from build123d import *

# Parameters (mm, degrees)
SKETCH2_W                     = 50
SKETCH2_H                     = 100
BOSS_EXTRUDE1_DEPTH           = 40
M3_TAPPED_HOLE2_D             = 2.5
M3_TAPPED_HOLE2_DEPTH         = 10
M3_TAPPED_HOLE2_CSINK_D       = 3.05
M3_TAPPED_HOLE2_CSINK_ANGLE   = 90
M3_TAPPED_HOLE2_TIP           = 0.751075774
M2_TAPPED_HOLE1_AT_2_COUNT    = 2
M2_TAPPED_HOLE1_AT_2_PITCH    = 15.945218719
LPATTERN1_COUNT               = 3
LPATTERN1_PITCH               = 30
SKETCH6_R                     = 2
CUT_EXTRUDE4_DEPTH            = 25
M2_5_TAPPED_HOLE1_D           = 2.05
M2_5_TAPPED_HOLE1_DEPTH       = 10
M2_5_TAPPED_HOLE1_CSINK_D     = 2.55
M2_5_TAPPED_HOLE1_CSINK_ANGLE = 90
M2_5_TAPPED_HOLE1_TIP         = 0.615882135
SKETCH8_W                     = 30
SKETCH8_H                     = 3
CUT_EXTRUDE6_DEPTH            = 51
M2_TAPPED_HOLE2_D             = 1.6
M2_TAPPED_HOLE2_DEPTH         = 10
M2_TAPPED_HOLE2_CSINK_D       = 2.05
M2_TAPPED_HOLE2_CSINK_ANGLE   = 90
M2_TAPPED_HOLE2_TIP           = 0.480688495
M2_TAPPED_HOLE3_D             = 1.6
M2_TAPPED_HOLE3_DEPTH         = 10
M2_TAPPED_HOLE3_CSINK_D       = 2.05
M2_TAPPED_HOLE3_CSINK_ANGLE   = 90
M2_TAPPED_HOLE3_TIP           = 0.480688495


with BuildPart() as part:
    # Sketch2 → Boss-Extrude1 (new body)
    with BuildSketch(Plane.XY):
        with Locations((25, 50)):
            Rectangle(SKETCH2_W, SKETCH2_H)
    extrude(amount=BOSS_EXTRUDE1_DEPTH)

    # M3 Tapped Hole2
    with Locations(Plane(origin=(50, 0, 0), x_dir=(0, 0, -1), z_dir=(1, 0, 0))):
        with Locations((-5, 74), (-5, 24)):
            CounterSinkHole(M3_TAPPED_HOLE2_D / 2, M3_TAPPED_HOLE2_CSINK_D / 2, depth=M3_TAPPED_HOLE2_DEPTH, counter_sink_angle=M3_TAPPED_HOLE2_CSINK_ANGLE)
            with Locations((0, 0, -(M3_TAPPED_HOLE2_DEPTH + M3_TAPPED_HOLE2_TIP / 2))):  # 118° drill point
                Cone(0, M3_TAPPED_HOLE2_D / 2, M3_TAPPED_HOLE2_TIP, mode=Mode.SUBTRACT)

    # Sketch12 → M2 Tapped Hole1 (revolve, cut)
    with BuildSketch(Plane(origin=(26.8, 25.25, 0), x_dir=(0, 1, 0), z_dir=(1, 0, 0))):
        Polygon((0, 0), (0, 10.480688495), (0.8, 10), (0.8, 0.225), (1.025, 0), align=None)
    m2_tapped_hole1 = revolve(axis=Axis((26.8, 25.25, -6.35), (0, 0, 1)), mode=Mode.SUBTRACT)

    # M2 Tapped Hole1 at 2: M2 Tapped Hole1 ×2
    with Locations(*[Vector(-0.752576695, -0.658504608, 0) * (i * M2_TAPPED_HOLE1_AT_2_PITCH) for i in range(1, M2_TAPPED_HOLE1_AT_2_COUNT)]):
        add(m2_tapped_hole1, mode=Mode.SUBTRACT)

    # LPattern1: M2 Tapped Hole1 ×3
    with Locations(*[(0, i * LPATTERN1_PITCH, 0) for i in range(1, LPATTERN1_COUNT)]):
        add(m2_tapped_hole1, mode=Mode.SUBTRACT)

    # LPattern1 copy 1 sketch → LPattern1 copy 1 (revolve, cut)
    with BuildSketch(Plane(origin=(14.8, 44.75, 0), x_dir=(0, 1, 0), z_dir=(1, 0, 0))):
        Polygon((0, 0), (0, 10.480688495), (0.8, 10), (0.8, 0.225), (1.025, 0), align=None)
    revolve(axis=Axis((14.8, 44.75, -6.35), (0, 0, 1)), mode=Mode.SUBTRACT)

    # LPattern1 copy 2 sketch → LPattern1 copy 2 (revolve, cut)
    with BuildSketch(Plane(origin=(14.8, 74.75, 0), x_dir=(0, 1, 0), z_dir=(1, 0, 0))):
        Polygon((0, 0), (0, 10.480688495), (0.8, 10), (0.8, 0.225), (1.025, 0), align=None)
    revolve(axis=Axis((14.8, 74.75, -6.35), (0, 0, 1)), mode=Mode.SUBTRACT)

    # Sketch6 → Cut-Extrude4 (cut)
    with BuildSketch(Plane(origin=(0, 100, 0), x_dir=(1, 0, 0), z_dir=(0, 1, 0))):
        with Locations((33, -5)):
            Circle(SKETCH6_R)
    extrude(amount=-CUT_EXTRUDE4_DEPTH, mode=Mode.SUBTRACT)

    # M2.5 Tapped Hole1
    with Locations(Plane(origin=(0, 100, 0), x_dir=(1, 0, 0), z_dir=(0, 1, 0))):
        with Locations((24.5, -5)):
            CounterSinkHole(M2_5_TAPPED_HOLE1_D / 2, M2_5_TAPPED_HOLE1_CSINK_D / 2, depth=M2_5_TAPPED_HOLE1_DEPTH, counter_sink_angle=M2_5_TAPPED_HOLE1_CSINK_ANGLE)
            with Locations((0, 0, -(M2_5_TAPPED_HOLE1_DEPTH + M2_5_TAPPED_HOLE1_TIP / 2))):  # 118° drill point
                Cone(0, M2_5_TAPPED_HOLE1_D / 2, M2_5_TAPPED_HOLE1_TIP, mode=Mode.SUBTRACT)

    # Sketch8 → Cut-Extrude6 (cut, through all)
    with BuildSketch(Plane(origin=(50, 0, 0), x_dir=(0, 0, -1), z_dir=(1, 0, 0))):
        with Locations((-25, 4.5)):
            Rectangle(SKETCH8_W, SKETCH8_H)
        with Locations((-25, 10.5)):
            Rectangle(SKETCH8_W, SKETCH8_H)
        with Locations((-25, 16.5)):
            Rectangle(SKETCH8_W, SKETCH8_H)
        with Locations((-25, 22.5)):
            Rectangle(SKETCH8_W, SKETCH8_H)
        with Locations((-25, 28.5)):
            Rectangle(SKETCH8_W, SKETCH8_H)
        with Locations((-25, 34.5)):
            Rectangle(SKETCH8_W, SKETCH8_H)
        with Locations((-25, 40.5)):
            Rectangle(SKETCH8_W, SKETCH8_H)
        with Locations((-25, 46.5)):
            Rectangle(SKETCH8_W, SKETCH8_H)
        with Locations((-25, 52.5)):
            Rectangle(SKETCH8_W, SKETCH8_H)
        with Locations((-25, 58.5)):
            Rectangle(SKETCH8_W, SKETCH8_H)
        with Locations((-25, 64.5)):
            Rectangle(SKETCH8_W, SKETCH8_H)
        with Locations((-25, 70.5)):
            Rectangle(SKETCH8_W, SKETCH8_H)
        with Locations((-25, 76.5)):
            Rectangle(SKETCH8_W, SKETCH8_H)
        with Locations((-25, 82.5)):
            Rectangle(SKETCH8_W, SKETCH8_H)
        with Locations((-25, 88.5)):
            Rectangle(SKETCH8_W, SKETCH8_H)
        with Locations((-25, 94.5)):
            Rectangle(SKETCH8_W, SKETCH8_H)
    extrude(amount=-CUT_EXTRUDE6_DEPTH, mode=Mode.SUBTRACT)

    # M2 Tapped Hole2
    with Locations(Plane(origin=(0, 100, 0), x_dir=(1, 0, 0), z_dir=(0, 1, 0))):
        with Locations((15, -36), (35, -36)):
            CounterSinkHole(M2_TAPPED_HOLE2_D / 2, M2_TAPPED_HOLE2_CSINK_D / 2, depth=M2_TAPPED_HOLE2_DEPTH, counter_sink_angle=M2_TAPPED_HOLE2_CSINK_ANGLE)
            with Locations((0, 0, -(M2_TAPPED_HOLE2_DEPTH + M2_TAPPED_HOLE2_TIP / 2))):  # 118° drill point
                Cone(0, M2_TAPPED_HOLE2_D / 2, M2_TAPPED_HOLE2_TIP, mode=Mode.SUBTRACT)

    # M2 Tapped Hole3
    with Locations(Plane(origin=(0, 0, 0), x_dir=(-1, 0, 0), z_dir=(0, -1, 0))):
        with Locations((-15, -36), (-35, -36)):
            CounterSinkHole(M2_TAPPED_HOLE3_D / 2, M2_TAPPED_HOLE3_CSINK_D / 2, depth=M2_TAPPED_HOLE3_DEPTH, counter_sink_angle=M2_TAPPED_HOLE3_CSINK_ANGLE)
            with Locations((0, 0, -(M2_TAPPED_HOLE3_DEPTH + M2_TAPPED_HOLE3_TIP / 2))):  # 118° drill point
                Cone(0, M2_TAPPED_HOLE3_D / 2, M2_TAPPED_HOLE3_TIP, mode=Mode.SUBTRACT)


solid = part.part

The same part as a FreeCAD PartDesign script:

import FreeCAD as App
import Part
import Sketcher
from FreeCAD import Vector
Q = App.Units.Quantity

doc = App.newDocument("Part")
params = doc.addObject("Spreadsheet::Sheet", "Params")
for row, (alias, value) in enumerate([
    ("sketch1_width", "50 mm"),
    ("sketch1_height", "100 mm"),
    ("pad1_length", "40 mm"),
    ("sketch2_diameter", "2.5 mm"),
    ("hole_diameter", "2.5 mm"),
    ("hole_depth", "10 mm"),
    ("hole_csink_diameter", "3.05 mm"),
    ("groove_angle", "360 deg"),
    ("linearpattern_pitch", "15.945219 mm"),
    ("linearpattern2_pitch", "30 mm"),
    ("groove2_angle", "360 deg"),
    ("groove3_angle", "360 deg"),
    ("sketch6_diameter", "4 mm"),
    ("pocket1_length", "25 mm"),
    ("sketch7_diameter", "2.05 mm"),
    ("hole2_diameter", "2.05 mm"),
    ("hole2_depth", "10 mm"),
    ("hole2_csink_diameter", "2.55 mm"),
    ("sketch8_width", "3 mm"),
    ("sketch8_height", "30 mm"),
    ("sketch9_diameter", "1.6 mm"),
    ("hole3_diameter", "1.6 mm"),
    ("hole3_depth", "10 mm"),
    ("hole3_csink_diameter", "2.05 mm"),
    ("sketch10_diameter", "1.6 mm"),
    ("hole4_diameter", "1.6 mm"),
    ("hole4_depth", "10 mm"),
    ("hole4_csink_diameter", "2.05 mm"),
], start=1):
    params.set(f"A{row}", alias)
    params.set(f"B{row}", "=" + value)
    params.setAlias(f"B{row}", alias)

body = doc.addObject("PartDesign::Body", "Body")

# Sketch on XY plane
sketch1 = doc.addObject("Sketcher::SketchObject", "Sketch")
body.addObject(sketch1)
sketch1.AttachmentSupport = (doc.XY_Plane, [""])
sketch1.MapMode = "FlatFace"
sketch1.addGeometry(Part.LineSegment(Vector(0, 100, 0), Vector(0, 0, 0)), False)
sketch1.addGeometry(Part.LineSegment(Vector(0, 0, 0), Vector(50, 0, 0)), False)
sketch1.addGeometry(Part.LineSegment(Vector(50, 0, 0), Vector(50, 100, 0)), False)
sketch1.addGeometry(Part.LineSegment(Vector(50, 100, 0), Vector(0, 100, 0)), False)
sketch1.addConstraint(Sketcher.Constraint("Coincident", 0, 2, 1, 1))
sketch1.addConstraint(Sketcher.Constraint("Coincident", 1, 2, 2, 1))
sketch1.addConstraint(Sketcher.Constraint("Coincident", 2, 2, 3, 1))
sketch1.addConstraint(Sketcher.Constraint("Coincident", 3, 2, 0, 1))
sketch1.addConstraint(Sketcher.Constraint("Vertical", 0))
sketch1.addConstraint(Sketcher.Constraint("Horizontal", 1))
sketch1.addConstraint(Sketcher.Constraint("Vertical", 2))
sketch1.addConstraint(Sketcher.Constraint("Horizontal", 3))
sketch1.addConstraint(Sketcher.Constraint("Coincident", 0, 2, -1, 1))
sketch1.addConstraint(Sketcher.Constraint("DistanceX", 1, 1, 1, 2, Q("50 mm")))
sketch1.addConstraint(Sketcher.Constraint("DistanceY", 0, 2, 0, 1, Q("100 mm")))
sketch1.setExpression("Constraints[9]", "Params.sketch1_width")
sketch1.setExpression("Constraints[10]", "Params.sketch1_height")
pad1 = doc.addObject("PartDesign::Pad", "Pad")
body.addObject(pad1)
pad1.Profile = sketch1
pad1.setExpression("Length", "Params.pad1_length")

# Sketch on YZ plane
sketch2 = doc.addObject("Sketcher::SketchObject", "Sketch001")
body.addObject(sketch2)
sketch2.AttachmentSupport = (doc.YZ_Plane, [""])
sketch2.MapMode = "FlatFace"
sketch2.AttachmentOffset = App.Placement(Vector(0, 0, 50), App.Rotation())
sketch2.addGeometry(Part.Circle(Vector(74, 5, 0), Vector(0, 0, 1), 1.25), False)
sketch2.addGeometry(Part.Circle(Vector(24, 5, 0), Vector(0, 0, 1), 1.25), False)
sketch2.addConstraint(Sketcher.Constraint("Equal", 0, 1))
sketch2.addConstraint(Sketcher.Constraint("Horizontal", 0, 3, 1, 3))
sketch2.addConstraint(Sketcher.Constraint("Diameter", 0, Q("2.5 mm")))
sketch2.addConstraint(Sketcher.Constraint("DistanceX", -1, 1, 0, 3, Q("74 mm")))
sketch2.addConstraint(Sketcher.Constraint("DistanceY", -1, 1, 0, 3, Q("5 mm")))
sketch2.addConstraint(Sketcher.Constraint("DistanceX", -1, 1, 1, 3, Q("24 mm")))
sketch2.setExpression("Constraints[2]", "Params.sketch2_diameter")
doc.recompute()
hole = doc.addObject("PartDesign::Hole", "Hole")
body.addObject(hole)
hole.Profile = sketch2
hole.ThreadType = "None"
hole.setExpression("Diameter", "Params.hole_diameter")
hole.DepthType = "Dimension"
hole.setExpression("Depth", "Params.hole_depth")
hole.DrillPoint = "Angled"
hole.DrillPointAngle = 118
hole.HoleCutType = "Countersink"
hole.setExpression("HoleCutDiameter", "Params.hole_csink_diameter")
hole.HoleCutCountersinkAngle = 90

# Sketch on YZ plane
sketch3 = doc.addObject("Sketcher::SketchObject", "Sketch002")
body.addObject(sketch3)
sketch3.AttachmentSupport = (doc.YZ_Plane, [""])
sketch3.MapMode = "FlatFace"
sketch3.AttachmentOffset = App.Placement(Vector(0, 0, 26.8), App.Rotation())
sketch3.addGeometry(Part.LineSegment(Vector(25.25, 10.480688, 0), Vector(25.25, 0, 0)), False)
sketch3.addGeometry(Part.LineSegment(Vector(25.25, 0, 0), Vector(26.275, 0, 0)), False)
sketch3.addGeometry(Part.LineSegment(Vector(26.275, 0, 0), Vector(26.05, 0.225, 0)), False)
sketch3.addGeometry(Part.LineSegment(Vector(26.05, 0.225, 0), Vector(26.05, 10, 0)), False)
sketch3.addGeometry(Part.LineSegment(Vector(26.05, 10, 0), Vector(25.25, 10.480688, 0)), False)
sketch3.addGeometry(Part.LineSegment(Vector(25.25, 0, 0), Vector(25.25, 10.480688, 0)), True)  # axis
sketch3.addConstraint(Sketcher.Constraint("Coincident", 0, 2, 1, 1))
sketch3.addConstraint(Sketcher.Constraint("Coincident", 1, 2, 2, 1))
sketch3.addConstraint(Sketcher.Constraint("Coincident", 2, 2, 3, 1))
sketch3.addConstraint(Sketcher.Constraint("Coincident", 3, 2, 4, 1))
sketch3.addConstraint(Sketcher.Constraint("Coincident", 4, 2, 0, 1))
sketch3.addConstraint(Sketcher.Constraint("Vertical", 0))
sketch3.addConstraint(Sketcher.Constraint("Horizontal", 1))
sketch3.addConstraint(Sketcher.Constraint("Vertical", 3))
sketch3.addConstraint(Sketcher.Constraint("Vertical", 5))
sketch3.addConstraint(Sketcher.Constraint("Coincident", 5, 1, 0, 2))
sketch3.addConstraint(Sketcher.Constraint("PointOnObject", 0, 2, -1))
sketch3.addConstraint(Sketcher.Constraint("Equal", 0, 5))
sketch3.addConstraint(Sketcher.Constraint("Angle", 2, Q("135 deg")))
sketch3.addConstraint(Sketcher.Constraint("Angle", 4, Q("149 deg")))
sketch3.addConstraint(Sketcher.Constraint("DistanceY", -1, 1, 3, 2, Q("10 mm")))
sketch3.addConstraint(Sketcher.Constraint("DistanceX", 0, 2, 2, 2, Q("0.8 mm")))
sketch3.addConstraint(Sketcher.Constraint("DistanceX", 1, 1, 1, 2, Q("1.025 mm")))
sketch3.addConstraint(Sketcher.Constraint("DistanceX", -1, 1, 0, 2, Q("25.25 mm")))
groove = doc.addObject("PartDesign::Groove", "Groove")
body.addObject(groove)
groove.Profile = sketch3
groove.ReferenceAxis = (sketch3, ["Axis0"])
groove.setExpression("Angle", "Params.groove_angle")
doc.recompute()

datumline = doc.addObject("PartDesign::Line", "DatumLine")
body.addObject(datumline)
datumline.Placement = App.Placement(Vector(0, 0, 0), App.Rotation(Vector(0, 0, 1), Vector(-0.752576695, -0.658504608, 0)))
linearpattern = doc.addObject("PartDesign::LinearPattern", "LinearPattern")
body.addObject(linearpattern)
linearpattern.Originals = [groove]
linearpattern.Direction = (datumline, [""])
linearpattern.Mode = "offset"
linearpattern.setExpression("Offset", "Params.linearpattern_pitch")
linearpattern.Occurrences = 2
body.Tip = linearpattern
doc.recompute()

linearpattern2 = doc.addObject("PartDesign::LinearPattern", "LinearPattern001")
body.addObject(linearpattern2)
linearpattern2.Originals = [groove]
linearpattern2.Direction = (doc.Y_Axis, [""])
linearpattern2.Mode = "offset"
linearpattern2.setExpression("Offset", "Params.linearpattern2_pitch")
linearpattern2.Occurrences = 3
body.Tip = linearpattern2

# Sketch on YZ plane
sketch4 = doc.addObject("Sketcher::SketchObject", "Sketch003")
body.addObject(sketch4)
sketch4.AttachmentSupport = (doc.YZ_Plane, [""])
sketch4.MapMode = "FlatFace"
sketch4.AttachmentOffset = App.Placement(Vector(0, 0, 14.8), App.Rotation())
sketch4.addGeometry(Part.LineSegment(Vector(44.75, 10.480688, 0), Vector(44.75, 0, 0)), False)
sketch4.addGeometry(Part.LineSegment(Vector(44.75, 0, 0), Vector(45.775, 0, 0)), False)
sketch4.addGeometry(Part.LineSegment(Vector(45.775, 0, 0), Vector(45.55, 0.225, 0)), False)
sketch4.addGeometry(Part.LineSegment(Vector(45.55, 0.225, 0), Vector(45.55, 10, 0)), False)
sketch4.addGeometry(Part.LineSegment(Vector(45.55, 10, 0), Vector(44.75, 10.480688, 0)), False)
sketch4.addGeometry(Part.LineSegment(Vector(44.75, 0, 0), Vector(44.75, 10.480688, 0)), True)  # axis
sketch4.addConstraint(Sketcher.Constraint("Coincident", 0, 2, 1, 1))
sketch4.addConstraint(Sketcher.Constraint("Coincident", 1, 2, 2, 1))
sketch4.addConstraint(Sketcher.Constraint("Coincident", 2, 2, 3, 1))
sketch4.addConstraint(Sketcher.Constraint("Coincident", 3, 2, 4, 1))
sketch4.addConstraint(Sketcher.Constraint("Coincident", 4, 2, 0, 1))
sketch4.addConstraint(Sketcher.Constraint("Vertical", 0))
sketch4.addConstraint(Sketcher.Constraint("Horizontal", 1))
sketch4.addConstraint(Sketcher.Constraint("Vertical", 3))
sketch4.addConstraint(Sketcher.Constraint("Vertical", 5))
sketch4.addConstraint(Sketcher.Constraint("Coincident", 5, 1, 0, 2))
sketch4.addConstraint(Sketcher.Constraint("PointOnObject", 0, 2, -1))
sketch4.addConstraint(Sketcher.Constraint("Equal", 0, 5))
sketch4.addConstraint(Sketcher.Constraint("Angle", 2, Q("135 deg")))
sketch4.addConstraint(Sketcher.Constraint("Angle", 4, Q("149 deg")))
sketch4.addConstraint(Sketcher.Constraint("DistanceY", -1, 1, 3, 2, Q("10 mm")))
sketch4.addConstraint(Sketcher.Constraint("DistanceX", 0, 2, 2, 2, Q("0.8 mm")))
sketch4.addConstraint(Sketcher.Constraint("DistanceX", 1, 1, 1, 2, Q("1.025 mm")))
sketch4.addConstraint(Sketcher.Constraint("DistanceX", -1, 1, 0, 2, Q("44.75 mm")))
groove2 = doc.addObject("PartDesign::Groove", "Groove001")
body.addObject(groove2)
groove2.Profile = sketch4
groove2.ReferenceAxis = (sketch4, ["Axis0"])
groove2.setExpression("Angle", "Params.groove2_angle")

# Sketch on YZ plane
sketch5 = doc.addObject("Sketcher::SketchObject", "Sketch004")
body.addObject(sketch5)
sketch5.AttachmentSupport = (doc.YZ_Plane, [""])
sketch5.MapMode = "FlatFace"
sketch5.AttachmentOffset = App.Placement(Vector(0, 0, 14.8), App.Rotation())
sketch5.addGeometry(Part.LineSegment(Vector(74.75, 10.480688, 0), Vector(74.75, 0, 0)), False)
sketch5.addGeometry(Part.LineSegment(Vector(74.75, 0, 0), Vector(75.775, 0, 0)), False)
sketch5.addGeometry(Part.LineSegment(Vector(75.775, 0, 0), Vector(75.55, 0.225, 0)), False)
sketch5.addGeometry(Part.LineSegment(Vector(75.55, 0.225, 0), Vector(75.55, 10, 0)), False)
sketch5.addGeometry(Part.LineSegment(Vector(75.55, 10, 0), Vector(74.75, 10.480688, 0)), False)
sketch5.addGeometry(Part.LineSegment(Vector(74.75, 0, 0), Vector(74.75, 10.480688, 0)), True)  # axis
sketch5.addConstraint(Sketcher.Constraint("Coincident", 0, 2, 1, 1))
sketch5.addConstraint(Sketcher.Constraint("Coincident", 1, 2, 2, 1))
sketch5.addConstraint(Sketcher.Constraint("Coincident", 2, 2, 3, 1))
sketch5.addConstraint(Sketcher.Constraint("Coincident", 3, 2, 4, 1))
sketch5.addConstraint(Sketcher.Constraint("Coincident", 4, 2, 0, 1))
sketch5.addConstraint(Sketcher.Constraint("Vertical", 0))
sketch5.addConstraint(Sketcher.Constraint("Horizontal", 1))
sketch5.addConstraint(Sketcher.Constraint("Vertical", 3))
sketch5.addConstraint(Sketcher.Constraint("Vertical", 5))
sketch5.addConstraint(Sketcher.Constraint("Coincident", 5, 1, 0, 2))
sketch5.addConstraint(Sketcher.Constraint("PointOnObject", 0, 2, -1))
sketch5.addConstraint(Sketcher.Constraint("Equal", 0, 5))
sketch5.addConstraint(Sketcher.Constraint("Angle", 2, Q("135 deg")))
sketch5.addConstraint(Sketcher.Constraint("Angle", 4, Q("149 deg")))
sketch5.addConstraint(Sketcher.Constraint("DistanceY", -1, 1, 3, 2, Q("10 mm")))
sketch5.addConstraint(Sketcher.Constraint("DistanceX", 0, 2, 2, 2, Q("0.8 mm")))
sketch5.addConstraint(Sketcher.Constraint("DistanceX", 1, 1, 1, 2, Q("1.025 mm")))
sketch5.addConstraint(Sketcher.Constraint("DistanceX", -1, 1, 0, 2, Q("74.75 mm")))
groove3 = doc.addObject("PartDesign::Groove", "Groove002")
body.addObject(groove3)
groove3.Profile = sketch5
groove3.ReferenceAxis = (sketch5, ["Axis0"])
groove3.setExpression("Angle", "Params.groove3_angle")

# Sketch on XZ plane
sketch6 = doc.addObject("Sketcher::SketchObject", "Sketch005")
body.addObject(sketch6)
sketch6.AttachmentSupport = (doc.XZ_Plane, [""])
sketch6.MapMode = "FlatFace"
sketch6.AttachmentOffset = App.Placement(Vector(0, 0, -100), App.Rotation())
sketch6.addGeometry(Part.Circle(Vector(33, 5, 0), Vector(0, 0, 1), 2), False)
sketch6.addConstraint(Sketcher.Constraint("Diameter", 0, Q("4 mm")))
sketch6.addConstraint(Sketcher.Constraint("DistanceX", -1, 1, 0, 3, Q("33 mm")))
sketch6.addConstraint(Sketcher.Constraint("DistanceY", -1, 1, 0, 3, Q("5 mm")))
sketch6.setExpression("Constraints[0]", "Params.sketch6_diameter")
pocket1 = doc.addObject("PartDesign::Pocket", "Pocket")
body.addObject(pocket1)
pocket1.Profile = sketch6
pocket1.setExpression("Length", "Params.pocket1_length")
pocket1.Reversed = True

# Sketch on XZ plane
sketch7 = doc.addObject("Sketcher::SketchObject", "Sketch006")
body.addObject(sketch7)
sketch7.AttachmentSupport = (doc.XZ_Plane, [""])
sketch7.MapMode = "FlatFace"
sketch7.AttachmentOffset = App.Placement(Vector(0, 0, -100), App.Rotation())
sketch7.addGeometry(Part.Circle(Vector(24.5, 5, 0), Vector(0, 0, 1), 1.025), False)
sketch7.addConstraint(Sketcher.Constraint("Diameter", 0, Q("2.05 mm")))
sketch7.addConstraint(Sketcher.Constraint("DistanceY", -1, 1, 0, 3, Q("5 mm")))
sketch7.addConstraint(Sketcher.Constraint("DistanceX", -1, 1, 0, 3, Q("24.5 mm")))
sketch7.setExpression("Constraints[0]", "Params.sketch7_diameter")
doc.recompute()
hole2 = doc.addObject("PartDesign::Hole", "Hole001")
body.addObject(hole2)
hole2.Profile = sketch7
hole2.ThreadType = "None"
hole2.setExpression("Diameter", "Params.hole2_diameter")
hole2.DepthType = "Dimension"
hole2.setExpression("Depth", "Params.hole2_depth")
hole2.DrillPoint = "Angled"
hole2.DrillPointAngle = 118
hole2.HoleCutType = "Countersink"
hole2.setExpression("HoleCutDiameter", "Params.hole2_csink_diameter")
hole2.HoleCutCountersinkAngle = 90
hole2.Reversed = True

# Sketch on YZ plane
sketch8 = doc.addObject("Sketcher::SketchObject", "Sketch007")
body.addObject(sketch8)
sketch8.AttachmentSupport = (doc.YZ_Plane, [""])
sketch8.MapMode = "FlatFace"
sketch8.AttachmentOffset = App.Placement(Vector(0, 0, 50), App.Rotation())
sketch8.addGeometry(Part.LineSegment(Vector(6, 40, 0), Vector(3, 40, 0)), False)
sketch8.addGeometry(Part.LineSegment(Vector(3, 40, 0), Vector(3, 10, 0)), False)
sketch8.addGeometry(Part.LineSegment(Vector(3, 10, 0), Vector(6, 10, 0)), False)
sketch8.addGeometry(Part.LineSegment(Vector(6, 10, 0), Vector(6, 40, 0)), False)
sketch8.addGeometry(Part.LineSegment(Vector(12, 40, 0), Vector(9, 40, 0)), False)
sketch8.addGeometry(Part.LineSegment(Vector(9, 40, 0), Vector(9, 10, 0)), False)
sketch8.addGeometry(Part.LineSegment(Vector(9, 10, 0), Vector(12, 10, 0)), False)
sketch8.addGeometry(Part.LineSegment(Vector(12, 10, 0), Vector(12, 40, 0)), False)
sketch8.addGeometry(Part.LineSegment(Vector(18, 40, 0), Vector(15, 40, 0)), False)
sketch8.addGeometry(Part.LineSegment(Vector(15, 40, 0), Vector(15, 10, 0)), False)
sketch8.addGeometry(Part.LineSegment(Vector(15, 10, 0), Vector(18, 10, 0)), False)
sketch8.addGeometry(Part.LineSegment(Vector(18, 10, 0), Vector(18, 40, 0)), False)
sketch8.addGeometry(Part.LineSegment(Vector(24, 40, 0), Vector(21, 40, 0)), False)
sketch8.addGeometry(Part.LineSegment(Vector(21, 40, 0), Vector(21, 10, 0)), False)
sketch8.addGeometry(Part.LineSegment(Vector(21, 10, 0), Vector(24, 10, 0)), False)
sketch8.addGeometry(Part.LineSegment(Vector(24, 10, 0), Vector(24, 40, 0)), False)
sketch8.addGeometry(Part.LineSegment(Vector(30, 40, 0), Vector(27, 40, 0)), False)
sketch8.addGeometry(Part.LineSegment(Vector(27, 40, 0), Vector(27, 10, 0)), False)
sketch8.addGeometry(Part.LineSegment(Vector(27, 10, 0), Vector(30, 10, 0)), False)
sketch8.addGeometry(Part.LineSegment(Vector(30, 10, 0), Vector(30, 40, 0)), False)
sketch8.addGeometry(Part.LineSegment(Vector(36, 40, 0), Vector(33, 40, 0)), False)
sketch8.addGeometry(Part.LineSegment(Vector(33, 40, 0), Vector(33, 10, 0)), False)
sketch8.addGeometry(Part.LineSegment(Vector(33, 10, 0), Vector(36, 10, 0)), False)
sketch8.addGeometry(Part.LineSegment(Vector(36, 10, 0), Vector(36, 40, 0)), False)
sketch8.addGeometry(Part.LineSegment(Vector(42, 40, 0), Vector(39, 40, 0)), False)
sketch8.addGeometry(Part.LineSegment(Vector(39, 40, 0), Vector(39, 10, 0)), False)
sketch8.addGeometry(Part.LineSegment(Vector(39, 10, 0), Vector(42, 10, 0)), False)
sketch8.addGeometry(Part.LineSegment(Vector(42, 10, 0), Vector(42, 40, 0)), False)
sketch8.addGeometry(Part.LineSegment(Vector(48, 40, 0), Vector(45, 40, 0)), False)
sketch8.addGeometry(Part.LineSegment(Vector(45, 40, 0), Vector(45, 10, 0)), False)
sketch8.addGeometry(Part.LineSegment(Vector(45, 10, 0), Vector(48, 10, 0)), False)
sketch8.addGeometry(Part.LineSegment(Vector(48, 10, 0), Vector(48, 40, 0)), False)
sketch8.addGeometry(Part.LineSegment(Vector(54, 40, 0), Vector(51, 40, 0)), False)
sketch8.addGeometry(Part.LineSegment(Vector(51, 40, 0), Vector(51, 10, 0)), False)
sketch8.addGeometry(Part.LineSegment(Vector(51, 10, 0), Vector(54, 10, 0)), False)
sketch8.addGeometry(Part.LineSegment(Vector(54, 10, 0), Vector(54, 40, 0)), False)
sketch8.addGeometry(Part.LineSegment(Vector(60, 40, 0), Vector(57, 40, 0)), False)
sketch8.addGeometry(Part.LineSegment(Vector(57, 40, 0), Vector(57, 10, 0)), False)
sketch8.addGeometry(Part.LineSegment(Vector(57, 10, 0), Vector(60, 10, 0)), False)
sketch8.addGeometry(Part.LineSegment(Vector(60, 10, 0), Vector(60, 40, 0)), False)
sketch8.addGeometry(Part.LineSegment(Vector(66, 40, 0), Vector(63, 40, 0)), False)
sketch8.addGeometry(Part.LineSegment(Vector(63, 40, 0), Vector(63, 10, 0)), False)
sketch8.addGeometry(Part.LineSegment(Vector(63, 10, 0), Vector(66, 10, 0)), False)
sketch8.addGeometry(Part.LineSegment(Vector(66, 10, 0), Vector(66, 40, 0)), False)
sketch8.addGeometry(Part.LineSegment(Vector(72, 40, 0), Vector(69, 40, 0)), False)
sketch8.addGeometry(Part.LineSegment(Vector(69, 40, 0), Vector(69, 10, 0)), False)
sketch8.addGeometry(Part.LineSegment(Vector(69, 10, 0), Vector(72, 10, 0)), False)
sketch8.addGeometry(Part.LineSegment(Vector(72, 10, 0), Vector(72, 40, 0)), False)
sketch8.addGeometry(Part.LineSegment(Vector(78, 40, 0), Vector(75, 40, 0)), False)
sketch8.addGeometry(Part.LineSegment(Vector(75, 40, 0), Vector(75, 10, 0)), False)
sketch8.addGeometry(Part.LineSegment(Vector(75, 10, 0), Vector(78, 10, 0)), False)
sketch8.addGeometry(Part.LineSegment(Vector(78, 10, 0), Vector(78, 40, 0)), False)
sketch8.addGeometry(Part.LineSegment(Vector(84, 40, 0), Vector(81, 40, 0)), False)
sketch8.addGeometry(Part.LineSegment(Vector(81, 40, 0), Vector(81, 10, 0)), False)
sketch8.addGeometry(Part.LineSegment(Vector(81, 10, 0), Vector(84, 10, 0)), False)
sketch8.addGeometry(Part.LineSegment(Vector(84, 10, 0), Vector(84, 40, 0)), False)
sketch8.addGeometry(Part.LineSegment(Vector(90, 40, 0), Vector(87, 40, 0)), False)
sketch8.addGeometry(Part.LineSegment(Vector(87, 40, 0), Vector(87, 10, 0)), False)
sketch8.addGeometry(Part.LineSegment(Vector(87, 10, 0), Vector(90, 10, 0)), False)
sketch8.addGeometry(Part.LineSegment(Vector(90, 10, 0), Vector(90, 40, 0)), False)
sketch8.addGeometry(Part.LineSegment(Vector(96, 40, 0), Vector(93, 40, 0)), False)
sketch8.addGeometry(Part.LineSegment(Vector(93, 40, 0), Vector(93, 10, 0)), False)
sketch8.addGeometry(Part.LineSegment(Vector(93, 10, 0), Vector(96, 10, 0)), False)
sketch8.addGeometry(Part.LineSegment(Vector(96, 10, 0), Vector(96, 40, 0)), False)
sketch8.addConstraint(Sketcher.Constraint("Coincident", 0, 2, 1, 1))
sketch8.addConstraint(Sketcher.Constraint("Coincident", 1, 2, 2, 1))
sketch8.addConstraint(Sketcher.Constraint("Coincident", 2, 2, 3, 1))
sketch8.addConstraint(Sketcher.Constraint("Coincident", 3, 2, 0, 1))
sketch8.addConstraint(Sketcher.Constraint("Coincident", 4, 2, 5, 1))
sketch8.addConstraint(Sketcher.Constraint("Coincident", 5, 2, 6, 1))
sketch8.addConstraint(Sketcher.Constraint("Coincident", 6, 2, 7, 1))
sketch8.addConstraint(Sketcher.Constraint("Coincident", 7, 2, 4, 1))
sketch8.addConstraint(Sketcher.Constraint("Coincident", 8, 2, 9, 1))
sketch8.addConstraint(Sketcher.Constraint("Coincident", 9, 2, 10, 1))
sketch8.addConstraint(Sketcher.Constraint("Coincident", 10, 2, 11, 1))
sketch8.addConstraint(Sketcher.Constraint("Coincident", 11, 2, 8, 1))
sketch8.addConstraint(Sketcher.Constraint("Coincident", 12, 2, 13, 1))
sketch8.addConstraint(Sketcher.Constraint("Coincident", 13, 2, 14, 1))
sketch8.addConstraint(Sketcher.Constraint("Coincident", 14, 2, 15, 1))
sketch8.addConstraint(Sketcher.Constraint("Coincident", 15, 2, 12, 1))
sketch8.addConstraint(Sketcher.Constraint("Coincident", 16, 2, 17, 1))
sketch8.addConstraint(Sketcher.Constraint("Coincident", 17, 2, 18, 1))
sketch8.addConstraint(Sketcher.Constraint("Coincident", 18, 2, 19, 1))
sketch8.addConstraint(Sketcher.Constraint("Coincident", 19, 2, 16, 1))
sketch8.addConstraint(Sketcher.Constraint("Coincident", 20, 2, 21, 1))
sketch8.addConstraint(Sketcher.Constraint("Coincident", 21, 2, 22, 1))
sketch8.addConstraint(Sketcher.Constraint("Coincident", 22, 2, 23, 1))
sketch8.addConstraint(Sketcher.Constraint("Coincident", 23, 2, 20, 1))
sketch8.addConstraint(Sketcher.Constraint("Coincident", 24, 2, 25, 1))
sketch8.addConstraint(Sketcher.Constraint("Coincident", 25, 2, 26, 1))
sketch8.addConstraint(Sketcher.Constraint("Coincident", 26, 2, 27, 1))
sketch8.addConstraint(Sketcher.Constraint("Coincident", 27, 2, 24, 1))
sketch8.addConstraint(Sketcher.Constraint("Coincident", 28, 2, 29, 1))
sketch8.addConstraint(Sketcher.Constraint("Coincident", 29, 2, 30, 1))
sketch8.addConstraint(Sketcher.Constraint("Coincident", 30, 2, 31, 1))
sketch8.addConstraint(Sketcher.Constraint("Coincident", 31, 2, 28, 1))
sketch8.addConstraint(Sketcher.Constraint("Coincident", 32, 2, 33, 1))
sketch8.addConstraint(Sketcher.Constraint("Coincident", 33, 2, 34, 1))
sketch8.addConstraint(Sketcher.Constraint("Coincident", 34, 2, 35, 1))
sketch8.addConstraint(Sketcher.Constraint("Coincident", 35, 2, 32, 1))
sketch8.addConstraint(Sketcher.Constraint("Coincident", 36, 2, 37, 1))
sketch8.addConstraint(Sketcher.Constraint("Coincident", 37, 2, 38, 1))
sketch8.addConstraint(Sketcher.Constraint("Coincident", 38, 2, 39, 1))
sketch8.addConstraint(Sketcher.Constraint("Coincident", 39, 2, 36, 1))
sketch8.addConstraint(Sketcher.Constraint("Coincident", 40, 2, 41, 1))
sketch8.addConstraint(Sketcher.Constraint("Coincident", 41, 2, 42, 1))
sketch8.addConstraint(Sketcher.Constraint("Coincident", 42, 2, 43, 1))
sketch8.addConstraint(Sketcher.Constraint("Coincident", 43, 2, 40, 1))
sketch8.addConstraint(Sketcher.Constraint("Coincident", 44, 2, 45, 1))
sketch8.addConstraint(Sketcher.Constraint("Coincident", 45, 2, 46, 1))
sketch8.addConstraint(Sketcher.Constraint("Coincident", 46, 2, 47, 1))
sketch8.addConstraint(Sketcher.Constraint("Coincident", 47, 2, 44, 1))
sketch8.addConstraint(Sketcher.Constraint("Coincident", 48, 2, 49, 1))
sketch8.addConstraint(Sketcher.Constraint("Coincident", 49, 2, 50, 1))
sketch8.addConstraint(Sketcher.Constraint("Coincident", 50, 2, 51, 1))
sketch8.addConstraint(Sketcher.Constraint("Coincident", 51, 2, 48, 1))
sketch8.addConstraint(Sketcher.Constraint("Coincident", 52, 2, 53, 1))
sketch8.addConstraint(Sketcher.Constraint("Coincident", 53, 2, 54, 1))
sketch8.addConstraint(Sketcher.Constraint("Coincident", 54, 2, 55, 1))
sketch8.addConstraint(Sketcher.Constraint("Coincident", 55, 2, 52, 1))
sketch8.addConstraint(Sketcher.Constraint("Coincident", 56, 2, 57, 1))
sketch8.addConstraint(Sketcher.Constraint("Coincident", 57, 2, 58, 1))
sketch8.addConstraint(Sketcher.Constraint("Coincident", 58, 2, 59, 1))
sketch8.addConstraint(Sketcher.Constraint("Coincident", 59, 2, 56, 1))
sketch8.addConstraint(Sketcher.Constraint("Coincident", 60, 2, 61, 1))
sketch8.addConstraint(Sketcher.Constraint("Coincident", 61, 2, 62, 1))
sketch8.addConstraint(Sketcher.Constraint("Coincident", 62, 2, 63, 1))
sketch8.addConstraint(Sketcher.Constraint("Coincident", 63, 2, 60, 1))
sketch8.addConstraint(Sketcher.Constraint("Horizontal", 0))
sketch8.addConstraint(Sketcher.Constraint("Vertical", 1))
sketch8.addConstraint(Sketcher.Constraint("Horizontal", 2))
sketch8.addConstraint(Sketcher.Constraint("Vertical", 3))
sketch8.addConstraint(Sketcher.Constraint("Horizontal", 4))
sketch8.addConstraint(Sketcher.Constraint("Vertical", 5))
sketch8.addConstraint(Sketcher.Constraint("Horizontal", 6))
sketch8.addConstraint(Sketcher.Constraint("Vertical", 7))
sketch8.addConstraint(Sketcher.Constraint("Horizontal", 8))
sketch8.addConstraint(Sketcher.Constraint("Vertical", 9))
sketch8.addConstraint(Sketcher.Constraint("Horizontal", 10))
sketch8.addConstraint(Sketcher.Constraint("Vertical", 11))
sketch8.addConstraint(Sketcher.Constraint("Horizontal", 12))
sketch8.addConstraint(Sketcher.Constraint("Vertical", 13))
sketch8.addConstraint(Sketcher.Constraint("Horizontal", 14))
sketch8.addConstraint(Sketcher.Constraint("Vertical", 15))
sketch8.addConstraint(Sketcher.Constraint("Horizontal", 16))
sketch8.addConstraint(Sketcher.Constraint("Vertical", 17))
sketch8.addConstraint(Sketcher.Constraint("Horizontal", 18))
sketch8.addConstraint(Sketcher.Constraint("Vertical", 19))
sketch8.addConstraint(Sketcher.Constraint("Horizontal", 20))
sketch8.addConstraint(Sketcher.Constraint("Vertical", 21))
sketch8.addConstraint(Sketcher.Constraint("Horizontal", 22))
sketch8.addConstraint(Sketcher.Constraint("Vertical", 23))
sketch8.addConstraint(Sketcher.Constraint("Horizontal", 24))
sketch8.addConstraint(Sketcher.Constraint("Vertical", 25))
sketch8.addConstraint(Sketcher.Constraint("Horizontal", 26))
sketch8.addConstraint(Sketcher.Constraint("Vertical", 27))
sketch8.addConstraint(Sketcher.Constraint("Horizontal", 28))
sketch8.addConstraint(Sketcher.Constraint("Vertical", 29))
sketch8.addConstraint(Sketcher.Constraint("Horizontal", 30))
sketch8.addConstraint(Sketcher.Constraint("Vertical", 31))
sketch8.addConstraint(Sketcher.Constraint("Horizontal", 32))
sketch8.addConstraint(Sketcher.Constraint("Vertical", 33))
sketch8.addConstraint(Sketcher.Constraint("Horizontal", 34))
sketch8.addConstraint(Sketcher.Constraint("Vertical", 35))
sketch8.addConstraint(Sketcher.Constraint("Horizontal", 36))
sketch8.addConstraint(Sketcher.Constraint("Vertical", 37))
sketch8.addConstraint(Sketcher.Constraint("Horizontal", 38))
sketch8.addConstraint(Sketcher.Constraint("Vertical", 39))
sketch8.addConstraint(Sketcher.Constraint("Horizontal", 40))
sketch8.addConstraint(Sketcher.Constraint("Vertical", 41))
sketch8.addConstraint(Sketcher.Constraint("Horizontal", 42))
sketch8.addConstraint(Sketcher.Constraint("Vertical", 43))
sketch8.addConstraint(Sketcher.Constraint("Horizontal", 44))
sketch8.addConstraint(Sketcher.Constraint("Vertical", 45))
sketch8.addConstraint(Sketcher.Constraint("Horizontal", 46))
sketch8.addConstraint(Sketcher.Constraint("Vertical", 47))
sketch8.addConstraint(Sketcher.Constraint("Horizontal", 48))
sketch8.addConstraint(Sketcher.Constraint("Vertical", 49))
sketch8.addConstraint(Sketcher.Constraint("Horizontal", 50))
sketch8.addConstraint(Sketcher.Constraint("Vertical", 51))
sketch8.addConstraint(Sketcher.Constraint("Horizontal", 52))
sketch8.addConstraint(Sketcher.Constraint("Vertical", 53))
sketch8.addConstraint(Sketcher.Constraint("Horizontal", 54))
sketch8.addConstraint(Sketcher.Constraint("Vertical", 55))
sketch8.addConstraint(Sketcher.Constraint("Horizontal", 56))
sketch8.addConstraint(Sketcher.Constraint("Vertical", 57))
sketch8.addConstraint(Sketcher.Constraint("Horizontal", 58))
sketch8.addConstraint(Sketcher.Constraint("Vertical", 59))
sketch8.addConstraint(Sketcher.Constraint("Horizontal", 60))
sketch8.addConstraint(Sketcher.Constraint("Vertical", 61))
sketch8.addConstraint(Sketcher.Constraint("Horizontal", 62))
sketch8.addConstraint(Sketcher.Constraint("Vertical", 63))
sketch8.addConstraint(Sketcher.Constraint("Horizontal", 3, 2, 4, 2))
sketch8.addConstraint(Sketcher.Constraint("Horizontal", 2, 2, 5, 2))
sketch8.addConstraint(Sketcher.Constraint("Horizontal", 7, 2, 8, 2))
sketch8.addConstraint(Sketcher.Constraint("Horizontal", 6, 2, 9, 2))
sketch8.addConstraint(Sketcher.Constraint("Horizontal", 11, 2, 12, 2))
sketch8.addConstraint(Sketcher.Constraint("Horizontal", 10, 2, 13, 2))
sketch8.addConstraint(Sketcher.Constraint("Horizontal", 15, 2, 16, 2))
sketch8.addConstraint(Sketcher.Constraint("Horizontal", 14, 2, 17, 2))
sketch8.addConstraint(Sketcher.Constraint("Horizontal", 19, 2, 20, 2))
sketch8.addConstraint(Sketcher.Constraint("Horizontal", 18, 2, 21, 2))
sketch8.addConstraint(Sketcher.Constraint("Horizontal", 23, 2, 24, 2))
sketch8.addConstraint(Sketcher.Constraint("Horizontal", 22, 2, 25, 2))
sketch8.addConstraint(Sketcher.Constraint("Horizontal", 27, 2, 28, 2))
sketch8.addConstraint(Sketcher.Constraint("Horizontal", 26, 2, 29, 2))
sketch8.addConstraint(Sketcher.Constraint("Horizontal", 31, 2, 32, 2))
sketch8.addConstraint(Sketcher.Constraint("Horizontal", 30, 2, 33, 2))
sketch8.addConstraint(Sketcher.Constraint("Horizontal", 35, 2, 36, 2))
sketch8.addConstraint(Sketcher.Constraint("Horizontal", 34, 2, 37, 2))
sketch8.addConstraint(Sketcher.Constraint("Horizontal", 39, 2, 40, 2))
sketch8.addConstraint(Sketcher.Constraint("Horizontal", 38, 2, 41, 2))
sketch8.addConstraint(Sketcher.Constraint("Horizontal", 43, 2, 44, 2))
sketch8.addConstraint(Sketcher.Constraint("Horizontal", 42, 2, 45, 2))
sketch8.addConstraint(Sketcher.Constraint("Horizontal", 47, 2, 48, 2))
sketch8.addConstraint(Sketcher.Constraint("Horizontal", 46, 2, 49, 2))
sketch8.addConstraint(Sketcher.Constraint("Horizontal", 51, 2, 52, 2))
sketch8.addConstraint(Sketcher.Constraint("Horizontal", 50, 2, 53, 2))
sketch8.addConstraint(Sketcher.Constraint("Horizontal", 55, 2, 56, 2))
sketch8.addConstraint(Sketcher.Constraint("Horizontal", 54, 2, 57, 2))
sketch8.addConstraint(Sketcher.Constraint("Horizontal", 59, 2, 60, 2))
sketch8.addConstraint(Sketcher.Constraint("Horizontal", 58, 2, 61, 2))
sketch8.addConstraint(Sketcher.Constraint("Equal", 2, 4))
sketch8.addConstraint(Sketcher.Constraint("Equal", 6, 8))
sketch8.addConstraint(Sketcher.Constraint("Equal", 10, 12))
sketch8.addConstraint(Sketcher.Constraint("Equal", 14, 16))
sketch8.addConstraint(Sketcher.Constraint("Equal", 18, 20))
sketch8.addConstraint(Sketcher.Constraint("Equal", 22, 24))
sketch8.addConstraint(Sketcher.Constraint("Equal", 26, 28))
sketch8.addConstraint(Sketcher.Constraint("Equal", 30, 32))
sketch8.addConstraint(Sketcher.Constraint("Equal", 34, 36))
sketch8.addConstraint(Sketcher.Constraint("Equal", 38, 40))
sketch8.addConstraint(Sketcher.Constraint("Equal", 42, 44))
sketch8.addConstraint(Sketcher.Constraint("Equal", 46, 48))
sketch8.addConstraint(Sketcher.Constraint("Equal", 50, 52))
sketch8.addConstraint(Sketcher.Constraint("Equal", 54, 56))
sketch8.addConstraint(Sketcher.Constraint("Equal", 58, 60))
sketch8.addConstraint(Sketcher.Constraint("DistanceX", 0, 2, 0, 1, Q("3 mm")))
sketch8.addConstraint(Sketcher.Constraint("DistanceY", 1, 2, 1, 1, Q("30 mm")))
sketch8.addConstraint(Sketcher.Constraint("DistanceX", -1, 1, 0, 2, Q("3 mm")))
sketch8.addConstraint(Sketcher.Constraint("DistanceY", -1, 1, 0, 2, Q("40 mm")))
sketch8.addConstraint(Sketcher.Constraint("DistanceX", -1, 1, 4, 2, Q("9 mm")))
sketch8.addConstraint(Sketcher.Constraint("DistanceX", -1, 1, 8, 2, Q("15 mm")))
sketch8.addConstraint(Sketcher.Constraint("DistanceX", -1, 1, 12, 2, Q("21 mm")))
sketch8.addConstraint(Sketcher.Constraint("DistanceX", -1, 1, 16, 2, Q("27 mm")))
sketch8.addConstraint(Sketcher.Constraint("DistanceX", -1, 1, 20, 2, Q("33 mm")))
sketch8.addConstraint(Sketcher.Constraint("DistanceX", -1, 1, 24, 2, Q("39 mm")))
sketch8.addConstraint(Sketcher.Constraint("DistanceX", -1, 1, 28, 2, Q("45 mm")))
sketch8.addConstraint(Sketcher.Constraint("DistanceX", -1, 1, 32, 2, Q("51 mm")))
sketch8.addConstraint(Sketcher.Constraint("DistanceX", -1, 1, 36, 2, Q("57 mm")))
sketch8.addConstraint(Sketcher.Constraint("DistanceX", -1, 1, 40, 2, Q("63 mm")))
sketch8.addConstraint(Sketcher.Constraint("DistanceX", -1, 1, 44, 2, Q("69 mm")))
sketch8.addConstraint(Sketcher.Constraint("DistanceX", -1, 1, 48, 2, Q("75 mm")))
sketch8.addConstraint(Sketcher.Constraint("DistanceX", -1, 1, 52, 2, Q("81 mm")))
sketch8.addConstraint(Sketcher.Constraint("DistanceX", -1, 1, 56, 2, Q("87 mm")))
sketch8.addConstraint(Sketcher.Constraint("DistanceX", -1, 1, 60, 2, Q("93 mm")))
sketch8.setExpression("Constraints[173]", "Params.sketch8_width")
sketch8.setExpression("Constraints[174]", "Params.sketch8_height")
pocket2 = doc.addObject("PartDesign::Pocket", "Pocket001")
body.addObject(pocket2)
pocket2.Profile = sketch8
pocket2.Type = "ThroughAll"

# Sketch on XZ plane
sketch9 = doc.addObject("Sketcher::SketchObject", "Sketch008")
body.addObject(sketch9)
sketch9.AttachmentSupport = (doc.XZ_Plane, [""])
sketch9.MapMode = "FlatFace"
sketch9.AttachmentOffset = App.Placement(Vector(0, 0, -100), App.Rotation())
sketch9.addGeometry(Part.Circle(Vector(15, 36, 0), Vector(0, 0, 1), 0.8), False)
sketch9.addGeometry(Part.Circle(Vector(35, 36, 0), Vector(0, 0, 1), 0.8), False)
sketch9.addConstraint(Sketcher.Constraint("Equal", 0, 1))
sketch9.addConstraint(Sketcher.Constraint("Horizontal", 0, 3, 1, 3))
sketch9.addConstraint(Sketcher.Constraint("Diameter", 0, Q("1.6 mm")))
sketch9.addConstraint(Sketcher.Constraint("DistanceX", -1, 1, 0, 3, Q("15 mm")))
sketch9.addConstraint(Sketcher.Constraint("DistanceY", -1, 1, 0, 3, Q("36 mm")))
sketch9.addConstraint(Sketcher.Constraint("DistanceX", -1, 1, 1, 3, Q("35 mm")))
sketch9.setExpression("Constraints[2]", "Params.sketch9_diameter")
doc.recompute()
hole3 = doc.addObject("PartDesign::Hole", "Hole002")
body.addObject(hole3)
hole3.Profile = sketch9
hole3.ThreadType = "None"
hole3.setExpression("Diameter", "Params.hole3_diameter")
hole3.DepthType = "Dimension"
hole3.setExpression("Depth", "Params.hole3_depth")
hole3.DrillPoint = "Angled"
hole3.DrillPointAngle = 118
hole3.HoleCutType = "Countersink"
hole3.setExpression("HoleCutDiameter", "Params.hole3_csink_diameter")
hole3.HoleCutCountersinkAngle = 90
hole3.Reversed = True

# Sketch on XZ plane
sketch10 = doc.addObject("Sketcher::SketchObject", "Sketch009")
body.addObject(sketch10)
sketch10.AttachmentSupport = (doc.XZ_Plane, [""])
sketch10.MapMode = "FlatFace"
sketch10.addGeometry(Part.Circle(Vector(15, 36, 0), Vector(0, 0, 1), 0.8), False)
sketch10.addGeometry(Part.Circle(Vector(35, 36, 0), Vector(0, 0, 1), 0.8), False)
sketch10.addConstraint(Sketcher.Constraint("Equal", 0, 1))
sketch10.addConstraint(Sketcher.Constraint("Horizontal", 0, 3, 1, 3))
sketch10.addConstraint(Sketcher.Constraint("Diameter", 0, Q("1.6 mm")))
sketch10.addConstraint(Sketcher.Constraint("DistanceX", -1, 1, 0, 3, Q("15 mm")))
sketch10.addConstraint(Sketcher.Constraint("DistanceY", -1, 1, 0, 3, Q("36 mm")))
sketch10.addConstraint(Sketcher.Constraint("DistanceX", -1, 1, 1, 3, Q("35 mm")))
sketch10.setExpression("Constraints[2]", "Params.sketch10_diameter")
doc.recompute()
hole4 = doc.addObject("PartDesign::Hole", "Hole003")
body.addObject(hole4)
hole4.Profile = sketch10
hole4.ThreadType = "None"
hole4.setExpression("Diameter", "Params.hole4_diameter")
hole4.DepthType = "Dimension"
hole4.setExpression("Depth", "Params.hole4_depth")
hole4.DrillPoint = "Angled"
hole4.DrillPointAngle = 118
hole4.HoleCutType = "Countersink"
hole4.setExpression("HoleCutDiameter", "Params.hole4_csink_diameter")
hole4.HoleCutCountersinkAngle = 90

doc.recompute()
